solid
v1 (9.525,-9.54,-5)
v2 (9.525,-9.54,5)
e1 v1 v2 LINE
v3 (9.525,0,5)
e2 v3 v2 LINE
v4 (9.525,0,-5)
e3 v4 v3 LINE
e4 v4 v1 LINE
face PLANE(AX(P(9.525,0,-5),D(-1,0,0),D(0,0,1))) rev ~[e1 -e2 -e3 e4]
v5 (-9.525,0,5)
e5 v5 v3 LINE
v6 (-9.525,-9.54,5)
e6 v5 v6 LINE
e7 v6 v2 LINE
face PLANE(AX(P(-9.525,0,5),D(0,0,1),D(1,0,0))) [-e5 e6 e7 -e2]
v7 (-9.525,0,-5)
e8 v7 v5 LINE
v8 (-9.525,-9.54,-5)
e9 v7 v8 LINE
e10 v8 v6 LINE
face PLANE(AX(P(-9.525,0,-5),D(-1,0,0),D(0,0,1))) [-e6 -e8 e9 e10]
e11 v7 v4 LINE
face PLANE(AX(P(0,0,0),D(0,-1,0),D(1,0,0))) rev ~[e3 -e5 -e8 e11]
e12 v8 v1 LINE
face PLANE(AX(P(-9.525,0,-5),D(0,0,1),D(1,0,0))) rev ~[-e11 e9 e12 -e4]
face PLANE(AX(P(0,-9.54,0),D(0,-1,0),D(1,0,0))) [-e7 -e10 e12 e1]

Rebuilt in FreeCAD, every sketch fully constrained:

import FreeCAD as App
import Part
import Sketcher

doc = App.newDocument("Part")
params = doc.addObject("Spreadsheet::Sheet", "Params")
for row, (alias, value) in enumerate([
    ("sketch1_height", "10 mm"),
    ("sketch1_width", "19.05 mm"),
    ("pad1_length", "9.54 mm"),
], start=1):
    params.set(f"A{row}", alias)
    params.set(f"B{row}", "=" + value)
    params.setAlias(f"B{row}", alias)

body = doc.addObject("PartDesign::Body", "Body")

# Sketch on XZ plane
sketch1 = doc.addObject("Sketcher::SketchObject", "Sketch")
body.addObject(sketch1)
sketch1.AttachmentSupport = (doc.XZ_Plane, [""])
sketch1.MapMode = "FlatFace"
sketch1.addGeometry([
    Part.LineSegment(App.Vector(-9.525, 5, 0), App.Vector(-9.525, -5, 0)),
    Part.LineSegment(App.Vector(-9.525, -5, 0), App.Vector(9.525, -5, 0)),
    Part.LineSegment(App.Vector(9.525, -5, 0), App.Vector(9.525, 5, 0)),
    Part.LineSegment(App.Vector(9.525, 5, 0), App.Vector(-9.525, 5, 0)),
], False)
sketch1.addConstraint([
    Sketcher.Constraint("Coincident", 0, 2, 1, 1),
    Sketcher.Constraint("Coincident", 1, 2, 2, 1),
    Sketcher.Constraint("Coincident", 2, 2, 3, 1),
    Sketcher.Constraint("Coincident", 3, 2, 0, 1),
    Sketcher.Constraint("Vertical", 0),
    Sketcher.Constraint("Horizontal", 1),
    Sketcher.Constraint("Vertical", 2),
    Sketcher.Constraint("Horizontal", 3),
    Sketcher.Constraint("Symmetric", 0, 2, 2, 2, -1, 1),
    Sketcher.Constraint("DistanceY", 0, 2, 0, 1, 10.0),
    Sketcher.Constraint("DistanceX", 1, 1, 1, 2, 19.05),
])
sketch1.setExpression("Constraints[9]", "Params.sketch1_height")
sketch1.setExpression("Constraints[10]", "Params.sketch1_width")
pad1 = doc.addObject("PartDesign::Pad", "Pad")
body.addObject(pad1)
pad1.Profile = sketch1
pad1.setExpression("Length", "Params.pad1_length")

doc.recompute()
